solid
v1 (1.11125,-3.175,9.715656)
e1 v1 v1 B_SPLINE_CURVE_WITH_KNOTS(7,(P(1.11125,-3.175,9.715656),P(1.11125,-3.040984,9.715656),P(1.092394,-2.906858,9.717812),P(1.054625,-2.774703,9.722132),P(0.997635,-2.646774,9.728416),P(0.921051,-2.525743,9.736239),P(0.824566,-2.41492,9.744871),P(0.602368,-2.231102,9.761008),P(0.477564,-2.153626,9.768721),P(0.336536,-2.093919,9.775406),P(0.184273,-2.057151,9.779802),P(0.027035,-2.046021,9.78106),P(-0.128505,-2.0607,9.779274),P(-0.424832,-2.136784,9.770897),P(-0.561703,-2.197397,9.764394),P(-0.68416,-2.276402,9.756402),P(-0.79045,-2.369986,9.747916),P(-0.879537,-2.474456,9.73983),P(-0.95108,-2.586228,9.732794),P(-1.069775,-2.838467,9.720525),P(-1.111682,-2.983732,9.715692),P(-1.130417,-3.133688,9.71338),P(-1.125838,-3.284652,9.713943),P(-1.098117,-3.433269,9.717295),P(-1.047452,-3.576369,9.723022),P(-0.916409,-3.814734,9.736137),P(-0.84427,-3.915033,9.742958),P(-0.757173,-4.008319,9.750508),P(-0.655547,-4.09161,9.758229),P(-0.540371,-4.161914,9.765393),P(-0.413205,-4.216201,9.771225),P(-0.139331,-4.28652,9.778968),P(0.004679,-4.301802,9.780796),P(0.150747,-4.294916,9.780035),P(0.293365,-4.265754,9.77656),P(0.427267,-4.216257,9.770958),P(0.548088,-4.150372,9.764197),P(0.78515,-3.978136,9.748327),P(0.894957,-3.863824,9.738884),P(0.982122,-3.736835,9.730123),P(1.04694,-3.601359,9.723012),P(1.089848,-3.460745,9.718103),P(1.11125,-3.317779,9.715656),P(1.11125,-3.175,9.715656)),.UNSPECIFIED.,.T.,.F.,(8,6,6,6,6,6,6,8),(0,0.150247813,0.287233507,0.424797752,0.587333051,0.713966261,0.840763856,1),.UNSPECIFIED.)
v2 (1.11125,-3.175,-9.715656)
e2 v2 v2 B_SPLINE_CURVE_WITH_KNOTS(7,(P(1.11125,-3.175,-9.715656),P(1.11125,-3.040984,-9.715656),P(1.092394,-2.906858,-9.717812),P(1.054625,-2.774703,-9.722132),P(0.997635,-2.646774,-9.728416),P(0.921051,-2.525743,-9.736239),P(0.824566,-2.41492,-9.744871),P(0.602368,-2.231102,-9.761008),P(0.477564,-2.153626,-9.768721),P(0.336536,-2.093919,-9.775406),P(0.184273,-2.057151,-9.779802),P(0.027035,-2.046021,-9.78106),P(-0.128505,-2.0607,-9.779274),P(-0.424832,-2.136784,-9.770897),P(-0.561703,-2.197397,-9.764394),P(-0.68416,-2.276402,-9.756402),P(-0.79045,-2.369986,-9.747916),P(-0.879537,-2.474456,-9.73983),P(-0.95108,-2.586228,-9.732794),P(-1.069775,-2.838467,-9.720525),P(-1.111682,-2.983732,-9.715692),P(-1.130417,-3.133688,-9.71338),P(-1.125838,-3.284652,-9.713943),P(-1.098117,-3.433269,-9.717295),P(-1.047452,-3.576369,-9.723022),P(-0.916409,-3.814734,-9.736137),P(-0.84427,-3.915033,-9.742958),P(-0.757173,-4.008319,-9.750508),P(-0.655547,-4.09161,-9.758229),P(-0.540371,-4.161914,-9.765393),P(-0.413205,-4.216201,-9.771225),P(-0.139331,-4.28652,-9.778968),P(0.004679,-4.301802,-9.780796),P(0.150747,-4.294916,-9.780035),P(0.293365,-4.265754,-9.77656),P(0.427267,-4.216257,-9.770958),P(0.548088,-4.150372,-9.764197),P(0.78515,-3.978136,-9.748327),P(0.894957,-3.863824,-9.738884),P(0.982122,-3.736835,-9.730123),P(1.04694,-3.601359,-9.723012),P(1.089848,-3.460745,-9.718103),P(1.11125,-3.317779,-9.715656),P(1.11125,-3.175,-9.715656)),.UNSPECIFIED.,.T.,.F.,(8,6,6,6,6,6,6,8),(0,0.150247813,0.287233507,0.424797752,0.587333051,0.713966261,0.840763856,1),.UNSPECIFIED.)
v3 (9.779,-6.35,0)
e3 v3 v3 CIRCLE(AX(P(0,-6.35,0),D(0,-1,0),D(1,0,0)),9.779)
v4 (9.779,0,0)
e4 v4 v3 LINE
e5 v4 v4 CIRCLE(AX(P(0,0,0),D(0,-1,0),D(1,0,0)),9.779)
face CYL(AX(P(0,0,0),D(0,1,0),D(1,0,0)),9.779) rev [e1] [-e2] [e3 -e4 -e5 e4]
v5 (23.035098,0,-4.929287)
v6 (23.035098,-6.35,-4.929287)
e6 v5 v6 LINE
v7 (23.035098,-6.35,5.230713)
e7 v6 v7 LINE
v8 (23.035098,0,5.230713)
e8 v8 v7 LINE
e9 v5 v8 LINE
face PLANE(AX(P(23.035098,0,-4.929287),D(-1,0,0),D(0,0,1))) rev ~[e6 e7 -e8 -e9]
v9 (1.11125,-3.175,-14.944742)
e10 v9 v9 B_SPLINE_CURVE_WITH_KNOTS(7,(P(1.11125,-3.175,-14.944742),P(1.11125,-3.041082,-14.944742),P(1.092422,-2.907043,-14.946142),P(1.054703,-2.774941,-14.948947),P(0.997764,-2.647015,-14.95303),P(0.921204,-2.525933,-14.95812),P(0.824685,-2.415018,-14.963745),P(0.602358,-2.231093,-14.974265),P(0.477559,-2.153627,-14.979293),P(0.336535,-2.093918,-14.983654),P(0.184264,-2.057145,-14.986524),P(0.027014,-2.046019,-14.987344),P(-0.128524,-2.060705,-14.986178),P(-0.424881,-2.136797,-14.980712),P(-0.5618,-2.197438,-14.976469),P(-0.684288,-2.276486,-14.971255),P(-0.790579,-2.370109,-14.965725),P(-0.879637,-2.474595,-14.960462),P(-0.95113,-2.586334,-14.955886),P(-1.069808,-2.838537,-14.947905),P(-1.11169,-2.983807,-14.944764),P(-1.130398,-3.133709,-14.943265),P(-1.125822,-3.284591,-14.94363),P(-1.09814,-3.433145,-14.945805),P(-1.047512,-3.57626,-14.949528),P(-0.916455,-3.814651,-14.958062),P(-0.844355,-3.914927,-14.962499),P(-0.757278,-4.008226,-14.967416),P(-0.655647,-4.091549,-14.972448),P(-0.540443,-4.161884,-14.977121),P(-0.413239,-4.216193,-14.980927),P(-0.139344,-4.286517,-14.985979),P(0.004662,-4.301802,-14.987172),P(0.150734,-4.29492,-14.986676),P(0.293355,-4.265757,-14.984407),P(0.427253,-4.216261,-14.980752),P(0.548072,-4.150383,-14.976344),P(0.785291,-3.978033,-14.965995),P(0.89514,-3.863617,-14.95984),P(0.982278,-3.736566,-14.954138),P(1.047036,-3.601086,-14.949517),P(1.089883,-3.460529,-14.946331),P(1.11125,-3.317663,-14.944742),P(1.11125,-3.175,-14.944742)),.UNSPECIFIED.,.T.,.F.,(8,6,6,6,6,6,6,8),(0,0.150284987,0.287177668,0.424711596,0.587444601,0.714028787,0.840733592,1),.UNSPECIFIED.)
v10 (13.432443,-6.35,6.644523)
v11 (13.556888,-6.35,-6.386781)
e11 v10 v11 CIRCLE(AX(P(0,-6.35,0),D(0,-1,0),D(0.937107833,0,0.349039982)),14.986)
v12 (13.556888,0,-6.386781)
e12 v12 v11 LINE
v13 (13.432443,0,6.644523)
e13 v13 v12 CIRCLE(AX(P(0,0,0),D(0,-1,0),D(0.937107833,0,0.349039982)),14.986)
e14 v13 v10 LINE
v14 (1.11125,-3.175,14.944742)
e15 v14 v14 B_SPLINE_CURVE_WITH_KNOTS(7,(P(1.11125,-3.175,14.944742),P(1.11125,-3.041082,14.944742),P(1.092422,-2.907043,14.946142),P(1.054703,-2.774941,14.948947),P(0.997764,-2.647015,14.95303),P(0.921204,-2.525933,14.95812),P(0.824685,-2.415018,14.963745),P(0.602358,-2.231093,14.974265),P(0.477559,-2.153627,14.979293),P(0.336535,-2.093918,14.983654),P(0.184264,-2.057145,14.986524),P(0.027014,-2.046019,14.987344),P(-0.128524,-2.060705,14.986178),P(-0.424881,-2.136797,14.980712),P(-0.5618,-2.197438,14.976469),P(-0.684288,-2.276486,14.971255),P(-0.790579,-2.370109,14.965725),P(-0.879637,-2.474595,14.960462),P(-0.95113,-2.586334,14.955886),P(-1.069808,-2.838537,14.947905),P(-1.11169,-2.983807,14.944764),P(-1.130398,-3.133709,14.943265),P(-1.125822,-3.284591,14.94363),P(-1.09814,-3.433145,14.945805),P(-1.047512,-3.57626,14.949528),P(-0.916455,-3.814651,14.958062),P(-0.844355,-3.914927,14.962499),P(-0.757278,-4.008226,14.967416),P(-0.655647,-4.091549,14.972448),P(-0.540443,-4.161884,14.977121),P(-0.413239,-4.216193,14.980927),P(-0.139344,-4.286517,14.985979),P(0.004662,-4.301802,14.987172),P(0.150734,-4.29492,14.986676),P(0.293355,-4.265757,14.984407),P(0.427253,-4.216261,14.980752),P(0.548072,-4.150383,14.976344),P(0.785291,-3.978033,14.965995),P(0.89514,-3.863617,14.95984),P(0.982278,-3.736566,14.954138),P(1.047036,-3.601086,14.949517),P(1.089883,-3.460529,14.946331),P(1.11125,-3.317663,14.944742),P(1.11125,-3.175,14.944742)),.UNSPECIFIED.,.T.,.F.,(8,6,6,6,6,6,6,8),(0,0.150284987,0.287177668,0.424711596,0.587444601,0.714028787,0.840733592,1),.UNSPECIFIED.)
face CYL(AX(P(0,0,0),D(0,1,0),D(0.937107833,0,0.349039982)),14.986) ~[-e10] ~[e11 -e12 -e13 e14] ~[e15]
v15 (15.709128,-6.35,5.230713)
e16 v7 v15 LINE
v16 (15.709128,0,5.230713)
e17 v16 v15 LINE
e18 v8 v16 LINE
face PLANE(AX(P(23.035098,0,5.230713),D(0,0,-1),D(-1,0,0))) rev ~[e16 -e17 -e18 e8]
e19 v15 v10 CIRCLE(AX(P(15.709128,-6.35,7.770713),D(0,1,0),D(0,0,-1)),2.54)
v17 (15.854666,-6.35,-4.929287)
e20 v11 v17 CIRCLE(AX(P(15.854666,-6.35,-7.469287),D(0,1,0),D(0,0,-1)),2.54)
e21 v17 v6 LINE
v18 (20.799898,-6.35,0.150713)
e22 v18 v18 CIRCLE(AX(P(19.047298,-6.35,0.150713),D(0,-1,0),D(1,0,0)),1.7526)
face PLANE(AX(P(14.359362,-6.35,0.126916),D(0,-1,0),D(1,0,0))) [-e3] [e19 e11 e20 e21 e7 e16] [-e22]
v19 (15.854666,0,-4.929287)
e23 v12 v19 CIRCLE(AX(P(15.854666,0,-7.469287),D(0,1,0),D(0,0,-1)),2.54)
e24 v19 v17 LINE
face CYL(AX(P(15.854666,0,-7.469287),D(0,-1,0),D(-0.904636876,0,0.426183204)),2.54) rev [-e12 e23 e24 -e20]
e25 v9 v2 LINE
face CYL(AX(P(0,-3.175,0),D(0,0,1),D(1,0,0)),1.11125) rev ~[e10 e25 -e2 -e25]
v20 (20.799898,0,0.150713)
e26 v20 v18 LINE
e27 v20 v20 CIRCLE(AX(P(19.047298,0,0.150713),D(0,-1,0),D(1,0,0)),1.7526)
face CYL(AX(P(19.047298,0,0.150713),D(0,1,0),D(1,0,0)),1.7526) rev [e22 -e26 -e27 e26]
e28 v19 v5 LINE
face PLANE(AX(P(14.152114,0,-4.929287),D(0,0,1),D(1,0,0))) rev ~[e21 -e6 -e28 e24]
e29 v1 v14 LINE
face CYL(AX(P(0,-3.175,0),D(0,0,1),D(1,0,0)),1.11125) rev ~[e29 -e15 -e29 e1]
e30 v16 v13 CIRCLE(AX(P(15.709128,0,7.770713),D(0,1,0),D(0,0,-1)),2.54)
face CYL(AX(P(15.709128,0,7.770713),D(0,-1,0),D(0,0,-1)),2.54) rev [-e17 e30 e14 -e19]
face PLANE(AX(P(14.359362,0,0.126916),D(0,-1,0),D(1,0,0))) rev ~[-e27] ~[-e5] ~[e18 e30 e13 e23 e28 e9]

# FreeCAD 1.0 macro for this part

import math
import FreeCAD as App
import Part
import Sketcher

V = App.Vector
Q = App.Units.Quantity


def edges_at(feature, points):
    """Names of the edges that pass closest to the given points."""
    edges = feature.Shape.Edges
    near = lambda p: min(range(len(edges)), key=lambda i: edges[i].distToShape(Part.Vertex(*p))[0])
    return sorted({f"Edge{near(p) + 1}" for p in points})

doc = App.newDocument("Part")
body = doc.addObject("PartDesign::Body", "Body")

# Sketch on XZ plane
sketch1 = body.newObject("Sketcher::SketchObject", "Sketch")
sketch1.AttachmentSupport = (doc.getObject("XZ_Plane"), [""])
sketch1.MapMode = "FlatFace"
sketch1.addGeometry(Part.LineSegment(V(23, 5.2, 0), V(14, 5.2, 0)), False)
sketch1.addGeometry(Part.ArcOfCircle(Part.Circle(V(0, 0, 0), V(0, 0, 1), 15), math.radians(20), math.radians(341)), False)
sketch1.addGeometry(Part.LineSegment(V(14.2, -4.9, 0), V(23, -4.9, 0)), False)
sketch1.addGeometry(Part.LineSegment(V(23, -4.9, 0), V(23, 5.2, 0)), False)
sketch1.addGeometry(Part.Circle(V(0, 0, 0), V(0, 0, 1), 9.8), False)
sketch1.addGeometry(Part.Circle(V(19, 0.2, 0), V(0, 0, 1), 1.8), False)
sketch1.addConstraint(Sketcher.Constraint("Coincident", 0, 2, 1, 1))
sketch1.addConstraint(Sketcher.Constraint("Coincident", 1, 2, 2, 1))
sketch1.addConstraint(Sketcher.Constraint("Coincident", 2, 2, 3, 1))
sketch1.addConstraint(Sketcher.Constraint("Coincident", 3, 2, 0, 1))
sketch1.addConstraint(Sketcher.Constraint("Horizontal", 0))
sketch1.addConstraint(Sketcher.Constraint("Horizontal", 2))
sketch1.addConstraint(Sketcher.Constraint("Vertical", 3))
sketch1.addConstraint(Sketcher.Constraint("Coincident", 1, 3, -1, 1))
sketch1.addConstraint(Sketcher.Constraint("Coincident", 4, 3, -1, 1))
sketch1.addConstraint(Sketcher.Constraint("Diameter", 4, Q("0.77 in")))
sketch1.addConstraint(Sketcher.Constraint("Radius", 1, Q("0.59 in")))
sketch1.addConstraint(Sketcher.Constraint("Diameter", 5, Q("0.138 in")))
sketch1.addConstraint(Sketcher.Constraint("DistanceY", 3, 1, 3, 2, Q("0.4 in")))
sketch1.addConstraint(Sketcher.Constraint("DistanceY", 5, 3, 0, 2, Q("0.2 in")))
sketch1.addConstraint(Sketcher.Constraint("DistanceX", 0, 2, 0, 1, Q("0.354 in")))
sketch1.addConstraint(Sketcher.Constraint("DistanceX", 0, 2, 5, 3, Q("0.197 in")))
sketch1.addConstraint(Sketcher.Constraint("DistanceX", 2, 1, 2, 2, Q("8.882984 mm")))
pad1 = body.newObject("PartDesign::Pad", "Pad")
pad1.Profile = sketch1
pad1.Length = Q("0.25 in")

# Sketch on XY plane
sketch2 = body.newObject("Sketcher::SketchObject", "Sketch001")
sketch2.AttachmentSupport = (doc.getObject("XY_Plane"), [""])
sketch2.MapMode = "FlatFace"
sketch2.addGeometry(Part.Circle(V(0, -3.2, 0), V(0, 0, 1), 1.1), False)
sketch2.addConstraint(Sketcher.Constraint("PointOnObject", 0, 3, -2))
sketch2.addConstraint(Sketcher.Constraint("Diameter", 0, Q("0.0875 in")))
sketch2.addConstraint(Sketcher.Constraint("DistanceY", 0, 3, -1, 1, Q("0.125 in")))
pocket1 = body.newObject("PartDesign::Pocket", "Pocket")
pocket1.Profile = sketch2
pocket1.Length = Q("2 in")
pocket1.Midplane = True
doc.recompute()

fillet = body.newObject("PartDesign::Fillet", "Fillet")
fillet.Base = (pocket1, edges_at(pocket1, [(14.043, -3.175, 5.231)]))
fillet.Radius = Q("0.1 in")
doc.recompute()

fillet2 = body.newObject("PartDesign::Fillet", "Fillet001")
fillet2.Base = (fillet, edges_at(fillet, [(14.152, -3.175, -4.929)]))
fillet2.Radius = Q("0.1 in")

doc.recompute()
